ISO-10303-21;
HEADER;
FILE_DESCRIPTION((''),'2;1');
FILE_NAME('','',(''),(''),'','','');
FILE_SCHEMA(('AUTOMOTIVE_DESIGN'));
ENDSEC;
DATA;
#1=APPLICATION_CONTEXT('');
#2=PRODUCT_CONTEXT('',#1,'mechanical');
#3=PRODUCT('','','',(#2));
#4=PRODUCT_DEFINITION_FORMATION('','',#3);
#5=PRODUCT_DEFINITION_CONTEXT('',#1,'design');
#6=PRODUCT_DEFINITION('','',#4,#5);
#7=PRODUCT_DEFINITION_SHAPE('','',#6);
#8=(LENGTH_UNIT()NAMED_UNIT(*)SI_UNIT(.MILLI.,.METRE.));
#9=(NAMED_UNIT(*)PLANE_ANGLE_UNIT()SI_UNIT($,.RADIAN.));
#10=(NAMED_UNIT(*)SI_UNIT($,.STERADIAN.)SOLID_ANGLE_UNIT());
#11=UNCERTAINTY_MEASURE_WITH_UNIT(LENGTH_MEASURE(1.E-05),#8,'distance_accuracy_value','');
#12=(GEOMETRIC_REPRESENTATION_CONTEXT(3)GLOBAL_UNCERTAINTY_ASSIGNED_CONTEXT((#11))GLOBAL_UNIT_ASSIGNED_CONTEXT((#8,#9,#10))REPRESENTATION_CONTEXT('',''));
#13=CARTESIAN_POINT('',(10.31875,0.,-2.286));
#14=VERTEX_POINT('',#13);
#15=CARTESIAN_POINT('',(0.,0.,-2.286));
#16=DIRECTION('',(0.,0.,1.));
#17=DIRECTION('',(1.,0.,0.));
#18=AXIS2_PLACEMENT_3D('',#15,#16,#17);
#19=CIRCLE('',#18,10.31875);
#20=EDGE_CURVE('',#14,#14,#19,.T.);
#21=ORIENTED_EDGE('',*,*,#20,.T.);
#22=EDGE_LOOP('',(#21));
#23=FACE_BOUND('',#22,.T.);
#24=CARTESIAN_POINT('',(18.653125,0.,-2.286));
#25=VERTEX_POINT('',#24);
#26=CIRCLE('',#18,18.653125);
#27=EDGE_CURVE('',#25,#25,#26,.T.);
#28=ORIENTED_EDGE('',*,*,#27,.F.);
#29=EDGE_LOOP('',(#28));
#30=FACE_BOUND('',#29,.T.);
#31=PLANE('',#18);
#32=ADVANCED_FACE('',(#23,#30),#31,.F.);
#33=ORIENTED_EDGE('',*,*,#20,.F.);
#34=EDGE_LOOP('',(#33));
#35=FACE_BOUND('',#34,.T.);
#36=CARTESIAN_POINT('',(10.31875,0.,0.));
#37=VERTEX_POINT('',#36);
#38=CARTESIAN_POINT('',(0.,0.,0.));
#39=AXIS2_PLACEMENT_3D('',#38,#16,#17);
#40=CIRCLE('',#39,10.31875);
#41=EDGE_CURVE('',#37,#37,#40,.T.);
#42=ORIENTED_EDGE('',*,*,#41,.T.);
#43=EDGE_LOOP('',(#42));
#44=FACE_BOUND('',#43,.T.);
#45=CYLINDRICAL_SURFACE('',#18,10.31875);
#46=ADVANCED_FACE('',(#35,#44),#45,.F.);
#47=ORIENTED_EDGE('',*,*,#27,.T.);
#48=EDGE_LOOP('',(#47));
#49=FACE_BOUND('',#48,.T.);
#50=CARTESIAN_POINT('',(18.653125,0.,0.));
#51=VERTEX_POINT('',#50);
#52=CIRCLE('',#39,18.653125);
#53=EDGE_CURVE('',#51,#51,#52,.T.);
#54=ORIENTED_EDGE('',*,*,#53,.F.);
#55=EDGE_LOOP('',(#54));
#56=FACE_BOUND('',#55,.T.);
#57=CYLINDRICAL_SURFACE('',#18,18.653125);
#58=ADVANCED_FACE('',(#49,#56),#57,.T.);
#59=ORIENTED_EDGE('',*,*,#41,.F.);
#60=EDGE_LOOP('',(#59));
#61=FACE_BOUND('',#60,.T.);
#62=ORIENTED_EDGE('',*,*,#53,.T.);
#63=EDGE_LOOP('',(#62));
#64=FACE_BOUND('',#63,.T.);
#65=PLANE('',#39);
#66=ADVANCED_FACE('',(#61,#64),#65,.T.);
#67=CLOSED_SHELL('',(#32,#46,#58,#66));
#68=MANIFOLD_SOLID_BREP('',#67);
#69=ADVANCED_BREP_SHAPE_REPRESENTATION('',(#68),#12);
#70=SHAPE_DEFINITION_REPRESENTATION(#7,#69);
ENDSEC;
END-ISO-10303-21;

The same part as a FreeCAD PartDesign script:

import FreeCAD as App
import Part
import Sketcher
Q = App.Units.Quantity

doc = App.newDocument("Part")
body = doc.addObject("PartDesign::Body", "Body")

sketch1 = body.newObject("Sketcher::SketchObject", "Sketch")
sketch1.AttachmentSupport = (doc.getObject("XY_Plane"), [""])
sketch1.MapMode = "FlatFace"
sketch1.addGeometry(Part.Circle(App.Vector(0, 0, 0), App.Vector(0, 0, 1), 18.653125), False)
sketch1.addGeometry(Part.Circle(App.Vector(0, 0, 0), App.Vector(0, 0, 1), 10.31875), False)
sketch1.addConstraint(Sketcher.Constraint("Coincident", 0, 3, -1, 1))
sketch1.addConstraint(Sketcher.Constraint("Coincident", 1, 3, -1, 1))
sketch1.addConstraint(Sketcher.Constraint("Diameter", 0, Q("1.46875 in")))
sketch1.addConstraint(Sketcher.Constraint("Diameter", 1, Q("0.8125 in")))
pad1 = body.newObject("PartDesign::Pad", "Pad")
pad1.Profile = sketch1
pad1.Length = Q("0.09 in")
pad1.Reversed = True

doc.recompute()
